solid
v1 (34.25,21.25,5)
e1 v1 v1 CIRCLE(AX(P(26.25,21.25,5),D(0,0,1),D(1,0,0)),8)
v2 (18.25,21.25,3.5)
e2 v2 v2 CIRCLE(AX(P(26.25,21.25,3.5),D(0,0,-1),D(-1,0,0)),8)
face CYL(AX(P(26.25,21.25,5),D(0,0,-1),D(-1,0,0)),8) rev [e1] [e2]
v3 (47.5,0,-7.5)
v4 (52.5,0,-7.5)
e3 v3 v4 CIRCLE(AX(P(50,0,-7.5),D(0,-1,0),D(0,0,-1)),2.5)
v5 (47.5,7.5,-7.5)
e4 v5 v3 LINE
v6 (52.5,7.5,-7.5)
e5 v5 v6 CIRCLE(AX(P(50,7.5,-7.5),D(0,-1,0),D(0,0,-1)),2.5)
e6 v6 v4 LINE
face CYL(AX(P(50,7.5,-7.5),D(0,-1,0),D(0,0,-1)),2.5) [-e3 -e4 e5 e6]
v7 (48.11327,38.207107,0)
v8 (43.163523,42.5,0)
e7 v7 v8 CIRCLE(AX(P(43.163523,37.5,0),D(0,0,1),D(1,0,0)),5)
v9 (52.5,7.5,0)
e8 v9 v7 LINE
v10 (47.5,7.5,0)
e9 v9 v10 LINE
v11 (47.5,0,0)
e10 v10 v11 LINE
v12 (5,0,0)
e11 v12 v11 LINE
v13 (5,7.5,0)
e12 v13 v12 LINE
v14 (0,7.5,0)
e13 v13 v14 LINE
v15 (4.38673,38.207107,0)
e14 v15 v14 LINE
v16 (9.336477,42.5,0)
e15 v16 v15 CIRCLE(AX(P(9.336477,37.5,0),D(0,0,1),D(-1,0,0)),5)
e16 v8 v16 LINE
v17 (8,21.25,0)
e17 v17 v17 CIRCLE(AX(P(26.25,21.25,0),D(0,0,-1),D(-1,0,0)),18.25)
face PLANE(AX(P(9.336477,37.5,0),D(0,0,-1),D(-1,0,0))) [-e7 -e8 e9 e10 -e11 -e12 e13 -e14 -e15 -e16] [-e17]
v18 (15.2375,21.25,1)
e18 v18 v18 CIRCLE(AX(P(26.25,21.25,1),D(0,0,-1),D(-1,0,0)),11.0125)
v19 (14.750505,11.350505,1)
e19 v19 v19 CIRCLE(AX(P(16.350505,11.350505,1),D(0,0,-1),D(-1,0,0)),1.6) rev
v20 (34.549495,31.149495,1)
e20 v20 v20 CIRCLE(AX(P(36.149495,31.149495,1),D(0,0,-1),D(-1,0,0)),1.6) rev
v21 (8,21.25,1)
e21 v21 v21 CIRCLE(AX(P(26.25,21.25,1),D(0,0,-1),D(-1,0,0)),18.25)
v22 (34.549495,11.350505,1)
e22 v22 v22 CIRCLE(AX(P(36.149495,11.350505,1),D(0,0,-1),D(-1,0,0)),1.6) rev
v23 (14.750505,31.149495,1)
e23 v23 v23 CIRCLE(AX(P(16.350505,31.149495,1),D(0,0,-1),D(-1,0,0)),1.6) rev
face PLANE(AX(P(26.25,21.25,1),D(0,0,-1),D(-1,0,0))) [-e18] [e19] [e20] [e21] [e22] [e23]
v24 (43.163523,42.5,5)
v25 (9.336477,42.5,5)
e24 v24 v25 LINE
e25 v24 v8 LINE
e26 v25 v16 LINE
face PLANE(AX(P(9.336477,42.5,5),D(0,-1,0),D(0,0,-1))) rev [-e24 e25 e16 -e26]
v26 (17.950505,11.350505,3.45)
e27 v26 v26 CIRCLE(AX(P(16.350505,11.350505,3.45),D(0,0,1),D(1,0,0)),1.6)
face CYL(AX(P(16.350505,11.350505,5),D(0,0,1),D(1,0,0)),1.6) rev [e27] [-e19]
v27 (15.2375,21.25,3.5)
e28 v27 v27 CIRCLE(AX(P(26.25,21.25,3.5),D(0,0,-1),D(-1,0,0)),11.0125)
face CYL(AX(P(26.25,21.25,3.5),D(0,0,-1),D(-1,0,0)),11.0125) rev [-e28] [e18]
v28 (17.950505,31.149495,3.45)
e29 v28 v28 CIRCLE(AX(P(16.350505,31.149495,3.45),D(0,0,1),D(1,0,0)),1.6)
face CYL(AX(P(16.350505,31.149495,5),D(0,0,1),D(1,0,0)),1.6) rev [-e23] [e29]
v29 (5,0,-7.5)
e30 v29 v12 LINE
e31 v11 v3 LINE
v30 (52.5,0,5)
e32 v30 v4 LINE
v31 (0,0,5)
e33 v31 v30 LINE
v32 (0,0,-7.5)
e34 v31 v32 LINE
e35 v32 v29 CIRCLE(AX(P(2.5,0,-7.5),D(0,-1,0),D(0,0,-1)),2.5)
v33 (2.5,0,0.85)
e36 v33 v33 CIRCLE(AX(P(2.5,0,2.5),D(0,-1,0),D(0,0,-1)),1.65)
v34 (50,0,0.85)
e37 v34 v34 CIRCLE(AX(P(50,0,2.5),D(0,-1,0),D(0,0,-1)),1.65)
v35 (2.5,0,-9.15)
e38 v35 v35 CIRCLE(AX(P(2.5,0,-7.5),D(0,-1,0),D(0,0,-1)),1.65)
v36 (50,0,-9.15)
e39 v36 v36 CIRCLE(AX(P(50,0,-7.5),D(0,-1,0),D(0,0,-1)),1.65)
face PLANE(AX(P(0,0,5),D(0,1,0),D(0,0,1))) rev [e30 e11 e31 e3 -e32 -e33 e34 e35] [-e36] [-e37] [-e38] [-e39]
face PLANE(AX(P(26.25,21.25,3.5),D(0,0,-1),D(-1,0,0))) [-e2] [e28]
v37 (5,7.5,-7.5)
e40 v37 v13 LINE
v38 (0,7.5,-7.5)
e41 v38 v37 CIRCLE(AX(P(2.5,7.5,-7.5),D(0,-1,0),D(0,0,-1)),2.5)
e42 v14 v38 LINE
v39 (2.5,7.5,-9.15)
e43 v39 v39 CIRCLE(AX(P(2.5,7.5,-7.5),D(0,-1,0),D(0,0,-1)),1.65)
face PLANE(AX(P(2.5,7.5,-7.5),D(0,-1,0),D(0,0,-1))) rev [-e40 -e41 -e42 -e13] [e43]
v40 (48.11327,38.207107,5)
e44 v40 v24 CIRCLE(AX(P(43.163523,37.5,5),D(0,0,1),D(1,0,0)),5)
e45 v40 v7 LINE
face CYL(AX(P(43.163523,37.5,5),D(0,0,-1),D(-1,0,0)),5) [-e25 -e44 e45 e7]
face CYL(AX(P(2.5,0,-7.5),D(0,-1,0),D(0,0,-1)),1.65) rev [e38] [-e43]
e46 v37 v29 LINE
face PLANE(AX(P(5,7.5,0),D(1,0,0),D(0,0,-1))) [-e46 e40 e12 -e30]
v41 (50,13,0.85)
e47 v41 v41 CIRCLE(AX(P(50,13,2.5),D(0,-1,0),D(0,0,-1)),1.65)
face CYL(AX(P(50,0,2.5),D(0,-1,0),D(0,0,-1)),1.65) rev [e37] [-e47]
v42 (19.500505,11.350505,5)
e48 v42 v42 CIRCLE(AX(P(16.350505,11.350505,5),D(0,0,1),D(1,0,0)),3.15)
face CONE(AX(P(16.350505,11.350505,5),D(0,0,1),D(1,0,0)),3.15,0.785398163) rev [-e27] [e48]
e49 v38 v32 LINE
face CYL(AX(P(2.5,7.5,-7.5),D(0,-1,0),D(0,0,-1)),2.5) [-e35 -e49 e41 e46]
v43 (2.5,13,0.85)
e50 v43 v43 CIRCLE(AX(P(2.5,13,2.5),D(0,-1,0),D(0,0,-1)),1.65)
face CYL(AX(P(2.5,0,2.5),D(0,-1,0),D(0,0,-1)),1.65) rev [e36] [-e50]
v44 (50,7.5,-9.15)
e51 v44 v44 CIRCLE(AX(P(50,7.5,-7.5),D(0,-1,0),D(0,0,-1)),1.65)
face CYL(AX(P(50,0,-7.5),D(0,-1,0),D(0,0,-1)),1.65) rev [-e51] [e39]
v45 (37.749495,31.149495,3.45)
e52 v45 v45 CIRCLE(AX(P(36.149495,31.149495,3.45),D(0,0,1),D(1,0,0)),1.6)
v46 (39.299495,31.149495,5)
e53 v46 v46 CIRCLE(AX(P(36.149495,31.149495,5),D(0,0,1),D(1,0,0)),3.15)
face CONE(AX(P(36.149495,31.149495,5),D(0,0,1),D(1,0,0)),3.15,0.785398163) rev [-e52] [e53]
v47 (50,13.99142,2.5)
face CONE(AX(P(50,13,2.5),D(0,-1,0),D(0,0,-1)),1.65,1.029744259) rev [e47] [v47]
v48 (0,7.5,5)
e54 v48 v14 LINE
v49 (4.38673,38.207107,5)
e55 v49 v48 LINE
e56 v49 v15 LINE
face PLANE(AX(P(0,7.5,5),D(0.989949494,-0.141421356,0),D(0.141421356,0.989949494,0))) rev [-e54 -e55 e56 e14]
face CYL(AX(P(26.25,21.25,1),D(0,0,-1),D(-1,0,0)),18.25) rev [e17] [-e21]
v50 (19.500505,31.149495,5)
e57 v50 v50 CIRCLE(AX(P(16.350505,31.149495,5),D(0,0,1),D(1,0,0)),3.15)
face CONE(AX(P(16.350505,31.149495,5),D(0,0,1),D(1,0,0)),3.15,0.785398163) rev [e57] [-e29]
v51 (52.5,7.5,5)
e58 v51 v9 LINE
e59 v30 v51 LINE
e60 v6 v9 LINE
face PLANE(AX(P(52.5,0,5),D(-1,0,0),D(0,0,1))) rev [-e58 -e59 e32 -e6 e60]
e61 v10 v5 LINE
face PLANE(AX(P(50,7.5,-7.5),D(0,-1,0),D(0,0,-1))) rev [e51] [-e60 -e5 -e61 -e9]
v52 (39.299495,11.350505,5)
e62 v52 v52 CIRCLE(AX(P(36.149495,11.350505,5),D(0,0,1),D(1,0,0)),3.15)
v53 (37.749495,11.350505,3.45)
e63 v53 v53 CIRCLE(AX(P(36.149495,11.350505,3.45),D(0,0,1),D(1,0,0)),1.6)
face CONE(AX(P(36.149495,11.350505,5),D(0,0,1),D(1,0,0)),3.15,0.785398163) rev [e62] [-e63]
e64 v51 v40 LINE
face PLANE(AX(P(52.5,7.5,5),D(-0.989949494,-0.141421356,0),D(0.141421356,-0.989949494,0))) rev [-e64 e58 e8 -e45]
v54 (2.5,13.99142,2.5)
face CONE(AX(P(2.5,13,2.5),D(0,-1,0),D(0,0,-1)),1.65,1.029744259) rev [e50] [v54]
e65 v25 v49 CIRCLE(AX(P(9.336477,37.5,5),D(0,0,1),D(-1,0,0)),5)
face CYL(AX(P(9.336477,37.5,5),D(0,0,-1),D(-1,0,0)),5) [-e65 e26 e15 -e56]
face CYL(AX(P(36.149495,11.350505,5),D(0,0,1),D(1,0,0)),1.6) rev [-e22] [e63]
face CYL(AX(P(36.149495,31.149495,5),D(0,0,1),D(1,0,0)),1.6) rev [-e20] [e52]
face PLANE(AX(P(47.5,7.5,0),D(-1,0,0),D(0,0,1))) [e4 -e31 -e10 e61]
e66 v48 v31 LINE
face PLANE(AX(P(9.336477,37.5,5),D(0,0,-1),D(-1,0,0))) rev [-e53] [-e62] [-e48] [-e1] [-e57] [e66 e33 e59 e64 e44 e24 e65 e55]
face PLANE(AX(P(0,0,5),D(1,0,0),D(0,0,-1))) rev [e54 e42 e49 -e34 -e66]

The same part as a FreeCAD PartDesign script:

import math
import FreeCAD as App
import Part
import Sketcher
from FreeCAD import Vector

doc = App.newDocument("Part")
body = doc.addObject("PartDesign::Body", "Body")

# Sketch on XY plane
sketch1 = body.newObject("Sketcher::SketchObject", "Sketch")
sketch1.AttachmentSupport = (doc.getObject("XY_Plane"), [""])
sketch1.MapMode = "FlatFace"
sketch1.addGeometry(Part.LineSegment(Vector(0, 0, 0), Vector(52, 0, 0)), False)
sketch1.addGeometry(Part.LineSegment(Vector(52, 0, 0), Vector(52, 8, 0)), False)
sketch1.addGeometry(Part.LineSegment(Vector(52, 8, 0), Vector(48, 38, 0)), False)
sketch1.addGeometry(Part.ArcOfCircle(Part.Circle(Vector(43, 37, 0), Vector(0, 0, 1), 5), math.radians(8), math.radians(90)), False)
sketch1.addGeometry(Part.LineSegment(Vector(43, 42, 0), Vector(9, 42, 0)), False)
sketch1.addGeometry(Part.ArcOfCircle(Part.Circle(Vector(9, 37, 0), Vector(0, 0, 1), 5), math.radians(90), math.radians(172)), False)
sketch1.addGeometry(Part.LineSegment(Vector(4, 38, 0), Vector(0, 8, 0)), False)
sketch1.addGeometry(Part.LineSegment(Vector(0, 8, 0), Vector(0, 0, 0)), False)
sketch1.addGeometry(Part.Circle(Vector(26, 21, 0), Vector(0, 0, 1), 8), False)
sketch1.addConstraint(Sketcher.Constraint("Coincident", 0, 2, 1, 1))
sketch1.addConstraint(Sketcher.Constraint("Coincident", 1, 2, 2, 1))
sketch1.addConstraint(Sketcher.Constraint("Tangent", 2, 2, 3, 1))
sketch1.addConstraint(Sketcher.Constraint("Tangent", 3, 2, 4, 1))
sketch1.addConstraint(Sketcher.Constraint("Tangent", 4, 2, 5, 1))
sketch1.addConstraint(Sketcher.Constraint("Tangent", 5, 2, 6, 1))
sketch1.addConstraint(Sketcher.Constraint("Coincident", 6, 2, 7, 1))
sketch1.addConstraint(Sketcher.Constraint("Coincident", 7, 2, 0, 1))
sketch1.addConstraint(Sketcher.Constraint("Horizontal", 0))
sketch1.addConstraint(Sketcher.Constraint("Vertical", 1))
sketch1.addConstraint(Sketcher.Constraint("Horizontal", 4))
sketch1.addConstraint(Sketcher.Constraint("Vertical", 7))
sketch1.addConstraint(Sketcher.Constraint("Coincident", 7, 2, -1, 1))
sketch1.addConstraint(Sketcher.Constraint("Equal", 3, 5))
sketch1.addConstraint(Sketcher.Constraint("Horizontal", 2, 2, 5, 2))
sketch1.addConstraint(Sketcher.Constraint("Horizontal", 1, 2, 6, 2))
sketch1.addConstraint(Sketcher.Constraint("Diameter", 8, 16.0))
sketch1.addConstraint(Sketcher.Constraint("Radius", 3, 5.0))
sketch1.addConstraint(Sketcher.Constraint("DistanceX", 0, 1, 0, 2, 52.5))
sketch1.addConstraint(Sketcher.Constraint("DistanceY", 1, 1, 1, 2, 7.5))
sketch1.addConstraint(Sketcher.Constraint("DistanceY", 1, 2, 3, 3, 30.0))
sketch1.addConstraint(Sketcher.Constraint("DistanceX", -1, 1, 8, 3, 26.25))
sketch1.addConstraint(Sketcher.Constraint("DistanceY", -1, 1, 8, 3, 21.25))
sketch1.addConstraint(Sketcher.Constraint("DistanceX", 4, 2, 4, 1, 33.827046))
pad1 = body.newObject("PartDesign::Pad", "Pad")
pad1.Profile = sketch1
pad1.Length = 5

# Sketch on XZ plane
sketch2 = body.newObject("Sketcher::SketchObject", "Sketch001")
sketch2.AttachmentSupport = (doc.getObject("XZ_Plane"), [""])
sketch2.MapMode = "FlatFace"
sketch2.addGeometry(Part.LineSegment(Vector(52.5, 0, 0), Vector(47.5, 0, 0)), False)
sketch2.addGeometry(Part.LineSegment(Vector(47.5, 0, 0), Vector(47.5, -7.5, 0)), False)
sketch2.addGeometry(Part.ArcOfCircle(Part.Circle(Vector(50, -7.5, 0), Vector(0, 0, 1), 2.5), math.radians(180), math.radians(360)), False)
sketch2.addGeometry(Part.LineSegment(Vector(52.5, -7.5, 0), Vector(52.5, 0, 0)), False)
sketch2.addGeometry(Part.LineSegment(Vector(5, 0, 0), Vector(0, 0, 0)), False)
sketch2.addGeometry(Part.LineSegment(Vector(0, 0, 0), Vector(0, -7.5, 0)), False)
sketch2.addGeometry(Part.ArcOfCircle(Part.Circle(Vector(2.5, -7.5, 0), Vector(0, 0, 1), 2.5), math.radians(180), math.radians(360)), False)
sketch2.addGeometry(Part.LineSegment(Vector(5, -7.5, 0), Vector(5, 0, 0)), False)
sketch2.addConstraint(Sketcher.Constraint("Coincident", 0, 2, 1, 1))
sketch2.addConstraint(Sketcher.Constraint("Tangent", 1, 2, 2, 1))
sketch2.addConstraint(Sketcher.Constraint("Tangent", 2, 2, 3, 1))
sketch2.addConstraint(Sketcher.Constraint("Coincident", 3, 2, 0, 1))
sketch2.addConstraint(Sketcher.Constraint("Coincident", 4, 2, 5, 1))
sketch2.addConstraint(Sketcher.Constraint("Tangent", 5, 2, 6, 1))
sketch2.addConstraint(Sketcher.Constraint("Tangent", 6, 2, 7, 1))
sketch2.addConstraint(Sketcher.Constraint("Coincident", 7, 2, 4, 1))
sketch2.addConstraint(Sketcher.Constraint("Horizontal", 0))
sketch2.addConstraint(Sketcher.Constraint("Vertical", 1))
sketch2.addConstraint(Sketcher.Constraint("Vertical", 3))
sketch2.addConstraint(Sketcher.Constraint("Horizontal", 4))
sketch2.addConstraint(Sketcher.Constraint("Vertical", 5))
sketch2.addConstraint(Sketcher.Constraint("Vertical", 7))
sketch2.addConstraint(Sketcher.Constraint("Coincident", 4, 2, -1, 1))
sketch2.addConstraint(Sketcher.Constraint("Equal", 2, 6))
sketch2.addConstraint(Sketcher.Constraint("PointOnObject", 0, 2, -1))
sketch2.addConstraint(Sketcher.Constraint("Horizontal", 2, 3, 6, 3))
sketch2.addConstraint(Sketcher.Constraint("Radius", 2, 2.5))
sketch2.addConstraint(Sketcher.Constraint("DistanceY", 1, 2, 1, 1, 7.5))
sketch2.addConstraint(Sketcher.Constraint("DistanceX", -1, 1, 2, 3, 50.0))
pad2 = body.newObject("PartDesign::Pad", "Pad001")
pad2.Profile = sketch2
pad2.Length = 7.5
pad2.Reversed = True

# Sketch on XY plane
sketch3 = body.newObject("Sketcher::SketchObject", "Sketch002")
sketch3.AttachmentSupport = (doc.getObject("XY_Plane"), [""])
sketch3.MapMode = "FlatFace"
sketch3.AttachmentOffset = App.Placement(Vector(0, 0, 5), App.Rotation())
sketch3.addGeometry(Part.Circle(Vector(16.4, 31.1, 0), Vector(0, 0, 1), 1.6), False)
sketch3.addGeometry(Part.Circle(Vector(36.1, 11.4, 0), Vector(0, 0, 1), 1.6), False)
sketch3.addGeometry(Part.Circle(Vector(16.4, 11.4, 0), Vector(0, 0, 1), 1.6), False)
sketch3.addGeometry(Part.Circle(Vector(36.1, 31.1, 0), Vector(0, 0, 1), 1.6), False)
sketch3.addConstraint(Sketcher.Constraint("Equal", 0, 1))
sketch3.addConstraint(Sketcher.Constraint("Equal", 1, 2))
sketch3.addConstraint(Sketcher.Constraint("Equal", 2, 3))
sketch3.addConstraint(Sketcher.Constraint("Horizontal", 1, 3, 2, 3))
sketch3.addConstraint(Sketcher.Constraint("Horizontal", 0, 3, 3, 3))
sketch3.addConstraint(Sketcher.Constraint("Vertical", 0, 3, 2, 3))
sketch3.addConstraint(Sketcher.Constraint("Vertical", 1, 3, 3, 3))
sketch3.addConstraint(Sketcher.Constraint("Diameter", 0, 3.2))
sketch3.addConstraint(Sketcher.Constraint("DistanceX", 0, 3, 1, 3, 19.79899))
sketch3.addConstraint(Sketcher.Constraint("DistanceY", 1, 3, 0, 3, 19.79899))
sketch3.addConstraint(Sketcher.Constraint("DistanceX", -1, 1, 0, 3, 16.350505))
sketch3.addConstraint(Sketcher.Constraint("DistanceY", -1, 1, 0, 3, 31.149495))
doc.recompute()
hole = body.newObject("PartDesign::Hole", "Hole")
hole.Profile = sketch3
hole.ThreadType = "None"
hole.Diameter = 3.2
hole.DepthType = "ThroughAll"
hole.HoleCutType = "Countersink"
hole.HoleCutDiameter = 6.3
hole.HoleCutCountersinkAngle = 90

# Sketch on XZ plane
sketch4 = body.newObject("Sketcher::SketchObject", "Sketch003")
sketch4.AttachmentSupport = (doc.getObject("XZ_Plane"), [""])
sketch4.MapMode = "FlatFace"
sketch4.addGeometry(Part.Circle(Vector(2.5, -7.5, 0), Vector(0, 0, 1), 1.6), False)
sketch4.addGeometry(Part.Circle(Vector(50, -7.5, 0), Vector(0, 0, 1), 1.6), False)
sketch4.addGeometry(Part.Circle(Vector(50, 2.5, 0), Vector(0, 0, 1), 1.6), False)
sketch4.addGeometry(Part.Circle(Vector(2.5, 2.5, 0), Vector(0, 0, 1), 1.6), False)
sketch4.addConstraint(Sketcher.Constraint("Equal", 0, 1))
sketch4.addConstraint(Sketcher.Constraint("Equal", 1, 2))
sketch4.addConstraint(Sketcher.Constraint("Equal", 2, 3))
sketch4.addConstraint(Sketcher.Constraint("Horizontal", 0, 3, 1, 3))
sketch4.addConstraint(Sketcher.Constraint("Horizontal", 2, 3, 3, 3))
sketch4.addConstraint(Sketcher.Constraint("Vertical", 1, 3, 2, 3))
sketch4.addConstraint(Sketcher.Constraint("Vertical", 0, 3, 3, 3))
sketch4.addConstraint(Sketcher.Constraint("Diameter", 0, 3.3))
sketch4.addConstraint(Sketcher.Constraint("DistanceX", -1, 1, 1, 3, 50.0))
sketch4.addConstraint(Sketcher.Constraint("DistanceY", 1, 3, 2, 3, 10.0))
sketch4.addConstraint(Sketcher.Constraint("DistanceX", -1, 1, 0, 3, 2.5))
sketch4.addConstraint(Sketcher.Constraint("DistanceY", 0, 3, -1, 1, 7.5))
doc.recompute()
hole2 = body.newObject("PartDesign::Hole", "Hole001")
hole2.Profile = sketch4
hole2.ThreadType = "None"
hole2.Diameter = 3.3
hole2.DepthType = "Dimension"
hole2.Depth = 13
hole2.DrillPoint = "Angled"
hole2.DrillPointAngle = 118

# Sketch on XY plane
sketch5 = body.newObject("Sketcher::SketchObject", "Sketch004")
sketch5.AttachmentSupport = (doc.getObject("XY_Plane"), [""])
sketch5.MapMode = "FlatFace"
sketch5.addGeometry(Part.Circle(Vector(26, 21, 0), Vector(0, 0, 1), 18), False)
sketch5.addConstraint(Sketcher.Constraint("Diameter", 0, 36.5))
sketch5.addConstraint(Sketcher.Constraint("DistanceX", -1, 1, 0, 3, 26.25))
sketch5.addConstraint(Sketcher.Constraint("DistanceY", -1, 1, 0, 3, 21.25))
pocket1 = body.newObject("PartDesign::Pocket", "Pocket")
pocket1.Profile = sketch5
pocket1.Length = 1
pocket1.Reversed = True

# Sketch on XY plane
sketch6 = body.newObject("Sketcher::SketchObject", "Sketch005")
sketch6.AttachmentSupport = (doc.getObject("XY_Plane"), [""])
sketch6.MapMode = "FlatFace"
sketch6.AttachmentOffset = App.Placement(Vector(0, 0, 1), App.Rotation())
sketch6.addGeometry(Part.Circle(Vector(26, 21, 0), Vector(0, 0, 1), 11), False)
sketch6.addConstraint(Sketcher.Constraint("Diameter", 0, 22.025))
sketch6.addConstraint(Sketcher.Constraint("DistanceX", -1, 1, 0, 3, 26.25))
sketch6.addConstraint(Sketcher.Constraint("DistanceY", -1, 1, 0, 3, 21.25))
pocket2 = body.newObject("PartDesign::Pocket", "Pocket001")
pocket2.Profile = sketch6
pocket2.Length = 2.5
pocket2.Reversed = True

doc.recompute()
